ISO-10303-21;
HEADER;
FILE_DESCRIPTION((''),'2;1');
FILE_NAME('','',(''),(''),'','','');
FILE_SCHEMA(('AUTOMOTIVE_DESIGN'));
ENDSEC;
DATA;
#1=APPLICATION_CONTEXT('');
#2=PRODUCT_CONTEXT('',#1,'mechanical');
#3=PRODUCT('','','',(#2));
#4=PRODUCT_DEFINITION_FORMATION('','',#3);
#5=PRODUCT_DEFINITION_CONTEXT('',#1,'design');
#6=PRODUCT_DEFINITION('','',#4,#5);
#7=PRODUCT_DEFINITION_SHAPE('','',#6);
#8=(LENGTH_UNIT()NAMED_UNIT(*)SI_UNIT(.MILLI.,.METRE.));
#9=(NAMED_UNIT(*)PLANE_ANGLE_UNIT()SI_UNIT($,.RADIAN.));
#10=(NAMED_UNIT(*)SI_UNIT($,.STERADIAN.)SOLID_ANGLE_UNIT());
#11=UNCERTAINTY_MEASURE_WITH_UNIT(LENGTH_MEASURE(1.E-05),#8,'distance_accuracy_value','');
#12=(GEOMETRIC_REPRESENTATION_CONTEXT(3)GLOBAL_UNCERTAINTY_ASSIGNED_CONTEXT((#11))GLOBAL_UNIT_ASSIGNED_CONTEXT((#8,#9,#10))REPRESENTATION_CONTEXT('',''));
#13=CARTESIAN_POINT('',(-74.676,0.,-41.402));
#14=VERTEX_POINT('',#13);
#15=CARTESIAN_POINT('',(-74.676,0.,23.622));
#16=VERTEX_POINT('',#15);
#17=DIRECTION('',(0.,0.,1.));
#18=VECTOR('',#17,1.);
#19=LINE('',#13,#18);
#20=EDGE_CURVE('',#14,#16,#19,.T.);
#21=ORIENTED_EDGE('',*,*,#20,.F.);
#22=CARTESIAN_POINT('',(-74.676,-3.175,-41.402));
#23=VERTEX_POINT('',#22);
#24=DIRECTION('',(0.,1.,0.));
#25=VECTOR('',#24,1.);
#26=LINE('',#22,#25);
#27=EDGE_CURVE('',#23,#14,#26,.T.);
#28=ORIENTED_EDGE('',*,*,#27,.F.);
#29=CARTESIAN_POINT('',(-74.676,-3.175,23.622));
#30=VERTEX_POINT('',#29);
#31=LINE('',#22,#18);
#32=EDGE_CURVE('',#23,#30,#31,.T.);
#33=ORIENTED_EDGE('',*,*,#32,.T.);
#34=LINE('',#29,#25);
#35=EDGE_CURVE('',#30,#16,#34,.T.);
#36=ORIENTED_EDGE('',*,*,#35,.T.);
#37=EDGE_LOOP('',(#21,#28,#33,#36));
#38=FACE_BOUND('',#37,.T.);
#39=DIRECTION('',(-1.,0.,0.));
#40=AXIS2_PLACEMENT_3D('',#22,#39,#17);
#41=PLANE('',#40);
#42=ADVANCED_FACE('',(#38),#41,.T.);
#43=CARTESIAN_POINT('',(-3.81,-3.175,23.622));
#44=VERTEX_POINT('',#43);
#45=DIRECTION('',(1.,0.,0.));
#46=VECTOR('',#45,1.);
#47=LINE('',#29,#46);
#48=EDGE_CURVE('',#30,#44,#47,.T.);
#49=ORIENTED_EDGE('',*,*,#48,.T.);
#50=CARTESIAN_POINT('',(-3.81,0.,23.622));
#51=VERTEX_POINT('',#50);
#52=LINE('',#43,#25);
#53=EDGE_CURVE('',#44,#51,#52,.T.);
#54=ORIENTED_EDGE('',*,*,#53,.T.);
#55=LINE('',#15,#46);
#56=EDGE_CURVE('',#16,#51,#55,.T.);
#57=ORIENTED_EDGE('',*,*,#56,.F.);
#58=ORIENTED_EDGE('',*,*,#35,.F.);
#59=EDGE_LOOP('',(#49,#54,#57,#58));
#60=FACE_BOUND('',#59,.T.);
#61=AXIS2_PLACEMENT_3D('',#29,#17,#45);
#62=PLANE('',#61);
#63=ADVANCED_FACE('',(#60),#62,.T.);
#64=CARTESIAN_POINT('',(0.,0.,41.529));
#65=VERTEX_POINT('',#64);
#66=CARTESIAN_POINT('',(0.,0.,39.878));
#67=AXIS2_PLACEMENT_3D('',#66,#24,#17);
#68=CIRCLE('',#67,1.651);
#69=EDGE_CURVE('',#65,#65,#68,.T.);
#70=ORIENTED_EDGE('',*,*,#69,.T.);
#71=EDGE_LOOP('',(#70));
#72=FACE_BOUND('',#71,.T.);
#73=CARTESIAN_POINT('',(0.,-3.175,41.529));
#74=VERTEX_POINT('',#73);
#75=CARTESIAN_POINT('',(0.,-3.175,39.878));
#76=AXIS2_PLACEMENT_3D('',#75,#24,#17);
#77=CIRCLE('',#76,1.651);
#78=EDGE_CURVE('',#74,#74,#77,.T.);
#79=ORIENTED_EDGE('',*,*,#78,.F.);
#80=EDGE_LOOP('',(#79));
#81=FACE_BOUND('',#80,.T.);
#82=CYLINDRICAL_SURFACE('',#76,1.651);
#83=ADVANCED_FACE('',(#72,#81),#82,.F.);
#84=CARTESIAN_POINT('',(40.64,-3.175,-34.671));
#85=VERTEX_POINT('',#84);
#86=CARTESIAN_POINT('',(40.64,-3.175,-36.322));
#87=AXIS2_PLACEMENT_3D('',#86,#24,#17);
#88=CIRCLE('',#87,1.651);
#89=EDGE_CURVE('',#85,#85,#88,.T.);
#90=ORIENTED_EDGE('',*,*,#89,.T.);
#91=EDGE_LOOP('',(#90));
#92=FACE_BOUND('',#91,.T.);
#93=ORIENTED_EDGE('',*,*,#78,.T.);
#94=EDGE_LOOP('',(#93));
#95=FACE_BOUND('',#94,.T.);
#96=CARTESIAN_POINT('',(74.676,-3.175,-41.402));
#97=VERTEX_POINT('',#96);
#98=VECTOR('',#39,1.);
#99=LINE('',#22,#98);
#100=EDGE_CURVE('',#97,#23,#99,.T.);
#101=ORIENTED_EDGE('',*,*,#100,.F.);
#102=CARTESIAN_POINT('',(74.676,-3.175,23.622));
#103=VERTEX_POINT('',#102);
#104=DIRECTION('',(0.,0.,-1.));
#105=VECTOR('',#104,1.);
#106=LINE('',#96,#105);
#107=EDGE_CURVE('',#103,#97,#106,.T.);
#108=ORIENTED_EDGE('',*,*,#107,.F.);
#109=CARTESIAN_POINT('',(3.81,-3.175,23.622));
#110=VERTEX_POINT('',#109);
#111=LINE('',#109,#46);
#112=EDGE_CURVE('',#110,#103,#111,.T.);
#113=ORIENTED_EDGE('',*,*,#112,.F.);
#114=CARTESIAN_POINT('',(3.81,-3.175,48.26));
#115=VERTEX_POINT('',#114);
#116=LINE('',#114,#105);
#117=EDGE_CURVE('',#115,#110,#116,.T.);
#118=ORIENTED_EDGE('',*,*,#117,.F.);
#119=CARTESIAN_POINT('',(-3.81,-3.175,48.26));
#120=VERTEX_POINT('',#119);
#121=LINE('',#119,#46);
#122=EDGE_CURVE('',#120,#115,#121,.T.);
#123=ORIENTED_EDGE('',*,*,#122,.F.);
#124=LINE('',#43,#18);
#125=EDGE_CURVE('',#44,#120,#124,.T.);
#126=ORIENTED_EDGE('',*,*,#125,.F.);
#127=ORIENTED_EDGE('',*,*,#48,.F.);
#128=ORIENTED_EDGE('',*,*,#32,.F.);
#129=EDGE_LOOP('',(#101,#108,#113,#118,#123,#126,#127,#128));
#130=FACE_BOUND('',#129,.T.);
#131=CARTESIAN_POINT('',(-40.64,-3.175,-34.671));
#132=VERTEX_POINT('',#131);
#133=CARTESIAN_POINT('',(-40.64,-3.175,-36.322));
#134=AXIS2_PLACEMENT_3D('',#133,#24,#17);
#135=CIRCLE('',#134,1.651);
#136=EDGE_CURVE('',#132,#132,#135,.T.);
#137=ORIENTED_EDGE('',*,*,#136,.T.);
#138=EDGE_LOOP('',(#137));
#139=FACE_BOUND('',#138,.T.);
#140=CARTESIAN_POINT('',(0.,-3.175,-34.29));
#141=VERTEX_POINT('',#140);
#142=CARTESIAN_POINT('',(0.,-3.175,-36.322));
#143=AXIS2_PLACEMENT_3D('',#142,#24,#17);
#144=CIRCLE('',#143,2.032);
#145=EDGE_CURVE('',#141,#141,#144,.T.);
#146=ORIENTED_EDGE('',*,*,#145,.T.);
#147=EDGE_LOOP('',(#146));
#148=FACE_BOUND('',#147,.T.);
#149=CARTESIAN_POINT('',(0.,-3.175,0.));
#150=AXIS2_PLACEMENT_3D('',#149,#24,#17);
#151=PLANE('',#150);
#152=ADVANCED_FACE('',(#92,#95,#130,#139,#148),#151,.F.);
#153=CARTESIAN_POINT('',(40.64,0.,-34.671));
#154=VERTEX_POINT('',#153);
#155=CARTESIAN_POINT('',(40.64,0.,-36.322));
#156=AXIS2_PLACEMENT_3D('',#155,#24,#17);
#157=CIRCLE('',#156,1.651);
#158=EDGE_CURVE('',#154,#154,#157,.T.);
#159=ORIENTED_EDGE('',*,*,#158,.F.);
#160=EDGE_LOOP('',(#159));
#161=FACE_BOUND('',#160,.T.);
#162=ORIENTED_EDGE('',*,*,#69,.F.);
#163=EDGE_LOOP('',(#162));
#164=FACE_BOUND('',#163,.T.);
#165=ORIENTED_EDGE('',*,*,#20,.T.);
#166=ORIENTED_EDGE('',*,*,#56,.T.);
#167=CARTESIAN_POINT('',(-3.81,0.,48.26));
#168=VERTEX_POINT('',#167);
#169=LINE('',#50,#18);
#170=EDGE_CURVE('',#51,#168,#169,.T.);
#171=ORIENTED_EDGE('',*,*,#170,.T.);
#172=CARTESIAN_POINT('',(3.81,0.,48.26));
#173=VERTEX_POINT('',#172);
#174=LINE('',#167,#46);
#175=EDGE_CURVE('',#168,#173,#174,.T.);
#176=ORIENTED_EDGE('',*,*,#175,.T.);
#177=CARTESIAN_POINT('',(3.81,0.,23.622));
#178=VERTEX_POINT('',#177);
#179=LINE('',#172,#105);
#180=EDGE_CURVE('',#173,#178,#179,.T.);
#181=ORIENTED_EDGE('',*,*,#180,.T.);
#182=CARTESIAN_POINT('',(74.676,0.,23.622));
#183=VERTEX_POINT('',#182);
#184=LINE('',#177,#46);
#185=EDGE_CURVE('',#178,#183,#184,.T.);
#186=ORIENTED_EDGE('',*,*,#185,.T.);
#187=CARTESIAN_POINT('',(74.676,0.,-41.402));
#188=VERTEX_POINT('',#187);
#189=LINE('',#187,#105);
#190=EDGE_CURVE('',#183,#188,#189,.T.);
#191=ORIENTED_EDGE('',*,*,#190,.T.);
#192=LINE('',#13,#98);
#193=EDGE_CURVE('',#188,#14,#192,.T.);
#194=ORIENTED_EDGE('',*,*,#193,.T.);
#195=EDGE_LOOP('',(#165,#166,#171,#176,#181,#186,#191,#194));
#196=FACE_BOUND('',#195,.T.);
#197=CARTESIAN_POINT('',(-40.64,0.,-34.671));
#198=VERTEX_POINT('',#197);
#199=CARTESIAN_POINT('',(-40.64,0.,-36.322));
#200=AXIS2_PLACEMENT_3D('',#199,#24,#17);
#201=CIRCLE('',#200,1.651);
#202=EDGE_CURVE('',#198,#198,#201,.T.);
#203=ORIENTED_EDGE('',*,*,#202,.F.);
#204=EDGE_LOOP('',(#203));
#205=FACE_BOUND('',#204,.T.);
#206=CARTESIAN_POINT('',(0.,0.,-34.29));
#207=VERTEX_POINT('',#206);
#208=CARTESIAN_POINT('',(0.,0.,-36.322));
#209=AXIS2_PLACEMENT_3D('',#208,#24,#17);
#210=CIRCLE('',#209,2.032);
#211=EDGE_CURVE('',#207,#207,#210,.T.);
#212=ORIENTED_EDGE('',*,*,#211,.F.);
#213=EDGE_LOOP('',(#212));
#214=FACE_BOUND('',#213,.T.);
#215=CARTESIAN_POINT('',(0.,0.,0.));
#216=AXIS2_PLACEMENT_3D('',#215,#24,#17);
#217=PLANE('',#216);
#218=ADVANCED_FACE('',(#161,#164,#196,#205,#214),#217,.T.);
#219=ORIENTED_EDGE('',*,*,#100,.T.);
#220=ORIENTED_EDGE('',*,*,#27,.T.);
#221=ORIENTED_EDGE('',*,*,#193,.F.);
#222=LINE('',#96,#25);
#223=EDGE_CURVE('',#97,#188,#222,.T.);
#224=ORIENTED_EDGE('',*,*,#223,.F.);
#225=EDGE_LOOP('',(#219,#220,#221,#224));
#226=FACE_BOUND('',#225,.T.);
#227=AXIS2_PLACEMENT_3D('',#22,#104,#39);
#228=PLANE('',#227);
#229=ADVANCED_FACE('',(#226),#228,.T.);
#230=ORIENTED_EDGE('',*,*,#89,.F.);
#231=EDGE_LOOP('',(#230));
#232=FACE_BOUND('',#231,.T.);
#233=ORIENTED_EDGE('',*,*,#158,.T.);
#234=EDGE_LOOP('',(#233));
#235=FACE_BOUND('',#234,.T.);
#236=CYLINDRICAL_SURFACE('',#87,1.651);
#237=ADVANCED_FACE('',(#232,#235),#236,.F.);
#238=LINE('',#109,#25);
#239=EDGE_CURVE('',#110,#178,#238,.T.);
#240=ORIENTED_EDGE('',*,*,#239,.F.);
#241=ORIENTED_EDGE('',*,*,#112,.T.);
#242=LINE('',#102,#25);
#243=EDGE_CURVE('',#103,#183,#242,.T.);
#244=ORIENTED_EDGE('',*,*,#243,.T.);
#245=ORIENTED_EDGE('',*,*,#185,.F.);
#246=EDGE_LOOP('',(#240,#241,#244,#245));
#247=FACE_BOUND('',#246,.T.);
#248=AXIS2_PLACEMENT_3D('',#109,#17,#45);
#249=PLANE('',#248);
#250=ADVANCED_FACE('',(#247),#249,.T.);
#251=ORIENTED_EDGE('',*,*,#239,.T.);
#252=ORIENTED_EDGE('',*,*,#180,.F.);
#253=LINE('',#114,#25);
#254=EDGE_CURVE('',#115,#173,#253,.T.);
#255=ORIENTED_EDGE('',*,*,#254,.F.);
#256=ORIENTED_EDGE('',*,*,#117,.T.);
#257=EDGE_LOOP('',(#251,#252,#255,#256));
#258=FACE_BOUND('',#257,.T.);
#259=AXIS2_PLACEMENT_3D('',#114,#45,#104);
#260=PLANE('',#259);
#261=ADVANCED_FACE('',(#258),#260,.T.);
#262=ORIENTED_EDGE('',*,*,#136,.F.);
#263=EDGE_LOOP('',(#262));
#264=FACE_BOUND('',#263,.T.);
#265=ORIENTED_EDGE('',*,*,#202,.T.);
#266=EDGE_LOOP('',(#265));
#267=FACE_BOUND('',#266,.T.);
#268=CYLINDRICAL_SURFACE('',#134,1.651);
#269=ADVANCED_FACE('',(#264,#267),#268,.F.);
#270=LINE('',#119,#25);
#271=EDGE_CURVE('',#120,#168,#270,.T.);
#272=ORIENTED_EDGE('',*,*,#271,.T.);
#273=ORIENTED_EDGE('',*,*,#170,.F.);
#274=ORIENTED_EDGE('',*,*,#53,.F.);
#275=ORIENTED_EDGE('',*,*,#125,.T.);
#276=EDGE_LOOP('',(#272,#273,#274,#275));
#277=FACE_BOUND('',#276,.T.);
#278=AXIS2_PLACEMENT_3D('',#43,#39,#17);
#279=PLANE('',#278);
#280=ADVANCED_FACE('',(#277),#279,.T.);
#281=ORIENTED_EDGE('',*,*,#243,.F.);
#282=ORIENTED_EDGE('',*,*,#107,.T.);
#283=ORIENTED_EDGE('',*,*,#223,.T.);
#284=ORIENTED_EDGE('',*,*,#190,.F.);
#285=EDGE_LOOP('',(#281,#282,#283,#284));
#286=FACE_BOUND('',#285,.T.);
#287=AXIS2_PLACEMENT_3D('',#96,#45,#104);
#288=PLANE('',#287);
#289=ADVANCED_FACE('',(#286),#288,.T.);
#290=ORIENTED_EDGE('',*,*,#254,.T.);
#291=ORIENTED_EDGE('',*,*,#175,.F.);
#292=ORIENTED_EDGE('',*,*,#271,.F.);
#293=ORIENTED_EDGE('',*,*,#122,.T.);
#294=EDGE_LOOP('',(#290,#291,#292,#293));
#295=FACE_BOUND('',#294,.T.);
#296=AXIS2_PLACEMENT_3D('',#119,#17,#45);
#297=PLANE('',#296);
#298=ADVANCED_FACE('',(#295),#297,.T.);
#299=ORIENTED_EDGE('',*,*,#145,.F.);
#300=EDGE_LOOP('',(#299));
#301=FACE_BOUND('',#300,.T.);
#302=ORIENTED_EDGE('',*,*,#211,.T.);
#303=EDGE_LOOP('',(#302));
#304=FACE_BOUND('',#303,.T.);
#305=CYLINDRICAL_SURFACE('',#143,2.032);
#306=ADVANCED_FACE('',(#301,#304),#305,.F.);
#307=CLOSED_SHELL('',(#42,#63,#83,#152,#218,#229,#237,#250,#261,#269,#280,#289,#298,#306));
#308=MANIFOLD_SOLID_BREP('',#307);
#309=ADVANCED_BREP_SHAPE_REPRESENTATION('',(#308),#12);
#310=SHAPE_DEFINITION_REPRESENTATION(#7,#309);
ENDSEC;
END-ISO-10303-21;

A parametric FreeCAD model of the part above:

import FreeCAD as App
import Part
import Sketcher

V = App.Vector
Q = App.Units.Quantity


def add_polygon(sketch, points):
    """Adds a closed chain of lines whose ends are joined by coincident constraints."""
    first, n = sketch.GeometryCount, len(points)
    for a, b in zip(points, points[1:] + points[:1]):
        sketch.addGeometry(Part.LineSegment(App.Vector(*a, 0), App.Vector(*b, 0)), False)
    for i in range(n):
        sketch.addConstraint(Sketcher.Constraint("Coincident", first + i, 2, first + (i + 1) % n, 1))

doc = App.newDocument("Part")
params = doc.addObject("Spreadsheet::Sheet", "Params")
for row, (alias, value) in enumerate([
    ("sketch1_width", "0.3 in"),
    ("sketch1_width2", "5.88 in"),
    ("sketch1_height", "2.56 in"),
    ("sketch1_height2", "0.97 in"),
    ("pad1_length", "0.125 in"),
    ("sketch2_diameter", "0.13 in"),
    ("sketch2_diameter2", "0.16 in"),
], start=1):
    params.set(f"A{row}", alias)
    params.set(f"B{row}", "=" + value)
    params.setAlias(f"B{row}", alias)

body = doc.addObject("PartDesign::Body", "Body")

sketch1 = doc.addObject("Sketcher::SketchObject", "Sketch")
body.addObject(sketch1)
sketch1.AttachmentSupport = (doc.XZ_Plane, [""])
sketch1.MapMode = "FlatFace"
add_polygon(sketch1, [(74.676, -41.402), (-74.676, -41.402), (-74.676, 23.622), (-3.81, 23.622), (-3.81, 48.26), (3.81, 48.26), (3.81, 23.622), (74.676, 23.622)])
sketch1.addConstraint(Sketcher.Constraint("Horizontal", 0))
sketch1.addConstraint(Sketcher.Constraint("Vertical", 1))
sketch1.addConstraint(Sketcher.Constraint("Horizontal", 2))
sketch1.addConstraint(Sketcher.Constraint("Vertical", 3))
sketch1.addConstraint(Sketcher.Constraint("Horizontal", 4))
sketch1.addConstraint(Sketcher.Constraint("Vertical", 5))
sketch1.addConstraint(Sketcher.Constraint("Horizontal", 6))
sketch1.addConstraint(Sketcher.Constraint("Vertical", 7))
sketch1.addConstraint(Sketcher.Constraint("Symmetric", 2, 2, 5, 2, -2))
sketch1.addConstraint(Sketcher.Constraint("Equal", 2, 6))
sketch1.addConstraint(Sketcher.Constraint("DistanceX", 4, 1, 4, 2, Q("0.3 in")))
sketch1.addConstraint(Sketcher.Constraint("DistanceX", 0, 2, 0, 1, Q("5.88 in")))
sketch1.addConstraint(Sketcher.Constraint("DistanceY", 1, 1, 1, 2, Q("2.56 in")))
sketch1.addConstraint(Sketcher.Constraint("DistanceY", 3, 1, 3, 2, Q("0.97 in")))
sketch1.addConstraint(Sketcher.Constraint("DistanceY", -1, 1, 3, 2, Q("1.9 in")))
sketch1.setExpression("Constraints[18]", "Params.sketch1_width")
sketch1.setExpression("Constraints[19]", "Params.sketch1_width2")
sketch1.setExpression("Constraints[20]", "Params.sketch1_height")
sketch1.setExpression("Constraints[21]", "Params.sketch1_height2")
pad1 = doc.addObject("PartDesign::Pad", "Pad")
body.addObject(pad1)
pad1.Profile = sketch1
pad1.setExpression("Length", "Params.pad1_length")

sketch2 = doc.addObject("Sketcher::SketchObject", "Sketch001")
body.addObject(sketch2)
sketch2.AttachmentSupport = (doc.XZ_Plane, [""])
sketch2.MapMode = "FlatFace"
sketch2.addGeometry(Part.Circle(V(-40.64, -36.322, 0), V(0, 0, 1), 1.651), False)
sketch2.addGeometry(Part.Circle(V(0, -36.322, 0), V(0, 0, 1), 2.032), False)
sketch2.addGeometry(Part.Circle(V(40.64, -36.322, 0), V(0, 0, 1), 1.651), False)
sketch2.addGeometry(Part.Circle(V(0, 39.878, 0), V(0, 0, 1), 1.651), False)
sketch2.addConstraint(Sketcher.Constraint("Equal", 0, 2))
sketch2.addConstraint(Sketcher.Constraint("Equal", 2, 3))
sketch2.addConstraint(Sketcher.Constraint("Symmetric", 0, 3, 2, 3, -2))
sketch2.addConstraint(Sketcher.Constraint("PointOnObject", 1, 3, -2))
sketch2.addConstraint(Sketcher.Constraint("PointOnObject", 3, 3, -2))
sketch2.addConstraint(Sketcher.Constraint("Horizontal", 0, 3, 1, 3))
sketch2.addConstraint(Sketcher.Constraint("Diameter", 0, Q("0.13 in")))
sketch2.addConstraint(Sketcher.Constraint("Diameter", 1, Q("0.16 in")))
sketch2.addConstraint(Sketcher.Constraint("DistanceY", 1, 3, 3, 3, Q("3 in")))
sketch2.addConstraint(Sketcher.Constraint("DistanceX", 0, 3, -1, 1, Q("1.6 in")))
sketch2.addConstraint(Sketcher.Constraint("DistanceY", 0, 3, -1, 1, Q("1.43 in")))
sketch2.setExpression("Constraints[6]", "Params.sketch2_diameter")
sketch2.setExpression("Constraints[7]", "Params.sketch2_diameter2")
pocket1 = doc.addObject("PartDesign::Pocket", "Pocket")
body.addObject(pocket1)
pocket1.Profile = sketch2
pocket1.Type = "ThroughAll"
pocket1.Reversed = True

doc.recompute()
